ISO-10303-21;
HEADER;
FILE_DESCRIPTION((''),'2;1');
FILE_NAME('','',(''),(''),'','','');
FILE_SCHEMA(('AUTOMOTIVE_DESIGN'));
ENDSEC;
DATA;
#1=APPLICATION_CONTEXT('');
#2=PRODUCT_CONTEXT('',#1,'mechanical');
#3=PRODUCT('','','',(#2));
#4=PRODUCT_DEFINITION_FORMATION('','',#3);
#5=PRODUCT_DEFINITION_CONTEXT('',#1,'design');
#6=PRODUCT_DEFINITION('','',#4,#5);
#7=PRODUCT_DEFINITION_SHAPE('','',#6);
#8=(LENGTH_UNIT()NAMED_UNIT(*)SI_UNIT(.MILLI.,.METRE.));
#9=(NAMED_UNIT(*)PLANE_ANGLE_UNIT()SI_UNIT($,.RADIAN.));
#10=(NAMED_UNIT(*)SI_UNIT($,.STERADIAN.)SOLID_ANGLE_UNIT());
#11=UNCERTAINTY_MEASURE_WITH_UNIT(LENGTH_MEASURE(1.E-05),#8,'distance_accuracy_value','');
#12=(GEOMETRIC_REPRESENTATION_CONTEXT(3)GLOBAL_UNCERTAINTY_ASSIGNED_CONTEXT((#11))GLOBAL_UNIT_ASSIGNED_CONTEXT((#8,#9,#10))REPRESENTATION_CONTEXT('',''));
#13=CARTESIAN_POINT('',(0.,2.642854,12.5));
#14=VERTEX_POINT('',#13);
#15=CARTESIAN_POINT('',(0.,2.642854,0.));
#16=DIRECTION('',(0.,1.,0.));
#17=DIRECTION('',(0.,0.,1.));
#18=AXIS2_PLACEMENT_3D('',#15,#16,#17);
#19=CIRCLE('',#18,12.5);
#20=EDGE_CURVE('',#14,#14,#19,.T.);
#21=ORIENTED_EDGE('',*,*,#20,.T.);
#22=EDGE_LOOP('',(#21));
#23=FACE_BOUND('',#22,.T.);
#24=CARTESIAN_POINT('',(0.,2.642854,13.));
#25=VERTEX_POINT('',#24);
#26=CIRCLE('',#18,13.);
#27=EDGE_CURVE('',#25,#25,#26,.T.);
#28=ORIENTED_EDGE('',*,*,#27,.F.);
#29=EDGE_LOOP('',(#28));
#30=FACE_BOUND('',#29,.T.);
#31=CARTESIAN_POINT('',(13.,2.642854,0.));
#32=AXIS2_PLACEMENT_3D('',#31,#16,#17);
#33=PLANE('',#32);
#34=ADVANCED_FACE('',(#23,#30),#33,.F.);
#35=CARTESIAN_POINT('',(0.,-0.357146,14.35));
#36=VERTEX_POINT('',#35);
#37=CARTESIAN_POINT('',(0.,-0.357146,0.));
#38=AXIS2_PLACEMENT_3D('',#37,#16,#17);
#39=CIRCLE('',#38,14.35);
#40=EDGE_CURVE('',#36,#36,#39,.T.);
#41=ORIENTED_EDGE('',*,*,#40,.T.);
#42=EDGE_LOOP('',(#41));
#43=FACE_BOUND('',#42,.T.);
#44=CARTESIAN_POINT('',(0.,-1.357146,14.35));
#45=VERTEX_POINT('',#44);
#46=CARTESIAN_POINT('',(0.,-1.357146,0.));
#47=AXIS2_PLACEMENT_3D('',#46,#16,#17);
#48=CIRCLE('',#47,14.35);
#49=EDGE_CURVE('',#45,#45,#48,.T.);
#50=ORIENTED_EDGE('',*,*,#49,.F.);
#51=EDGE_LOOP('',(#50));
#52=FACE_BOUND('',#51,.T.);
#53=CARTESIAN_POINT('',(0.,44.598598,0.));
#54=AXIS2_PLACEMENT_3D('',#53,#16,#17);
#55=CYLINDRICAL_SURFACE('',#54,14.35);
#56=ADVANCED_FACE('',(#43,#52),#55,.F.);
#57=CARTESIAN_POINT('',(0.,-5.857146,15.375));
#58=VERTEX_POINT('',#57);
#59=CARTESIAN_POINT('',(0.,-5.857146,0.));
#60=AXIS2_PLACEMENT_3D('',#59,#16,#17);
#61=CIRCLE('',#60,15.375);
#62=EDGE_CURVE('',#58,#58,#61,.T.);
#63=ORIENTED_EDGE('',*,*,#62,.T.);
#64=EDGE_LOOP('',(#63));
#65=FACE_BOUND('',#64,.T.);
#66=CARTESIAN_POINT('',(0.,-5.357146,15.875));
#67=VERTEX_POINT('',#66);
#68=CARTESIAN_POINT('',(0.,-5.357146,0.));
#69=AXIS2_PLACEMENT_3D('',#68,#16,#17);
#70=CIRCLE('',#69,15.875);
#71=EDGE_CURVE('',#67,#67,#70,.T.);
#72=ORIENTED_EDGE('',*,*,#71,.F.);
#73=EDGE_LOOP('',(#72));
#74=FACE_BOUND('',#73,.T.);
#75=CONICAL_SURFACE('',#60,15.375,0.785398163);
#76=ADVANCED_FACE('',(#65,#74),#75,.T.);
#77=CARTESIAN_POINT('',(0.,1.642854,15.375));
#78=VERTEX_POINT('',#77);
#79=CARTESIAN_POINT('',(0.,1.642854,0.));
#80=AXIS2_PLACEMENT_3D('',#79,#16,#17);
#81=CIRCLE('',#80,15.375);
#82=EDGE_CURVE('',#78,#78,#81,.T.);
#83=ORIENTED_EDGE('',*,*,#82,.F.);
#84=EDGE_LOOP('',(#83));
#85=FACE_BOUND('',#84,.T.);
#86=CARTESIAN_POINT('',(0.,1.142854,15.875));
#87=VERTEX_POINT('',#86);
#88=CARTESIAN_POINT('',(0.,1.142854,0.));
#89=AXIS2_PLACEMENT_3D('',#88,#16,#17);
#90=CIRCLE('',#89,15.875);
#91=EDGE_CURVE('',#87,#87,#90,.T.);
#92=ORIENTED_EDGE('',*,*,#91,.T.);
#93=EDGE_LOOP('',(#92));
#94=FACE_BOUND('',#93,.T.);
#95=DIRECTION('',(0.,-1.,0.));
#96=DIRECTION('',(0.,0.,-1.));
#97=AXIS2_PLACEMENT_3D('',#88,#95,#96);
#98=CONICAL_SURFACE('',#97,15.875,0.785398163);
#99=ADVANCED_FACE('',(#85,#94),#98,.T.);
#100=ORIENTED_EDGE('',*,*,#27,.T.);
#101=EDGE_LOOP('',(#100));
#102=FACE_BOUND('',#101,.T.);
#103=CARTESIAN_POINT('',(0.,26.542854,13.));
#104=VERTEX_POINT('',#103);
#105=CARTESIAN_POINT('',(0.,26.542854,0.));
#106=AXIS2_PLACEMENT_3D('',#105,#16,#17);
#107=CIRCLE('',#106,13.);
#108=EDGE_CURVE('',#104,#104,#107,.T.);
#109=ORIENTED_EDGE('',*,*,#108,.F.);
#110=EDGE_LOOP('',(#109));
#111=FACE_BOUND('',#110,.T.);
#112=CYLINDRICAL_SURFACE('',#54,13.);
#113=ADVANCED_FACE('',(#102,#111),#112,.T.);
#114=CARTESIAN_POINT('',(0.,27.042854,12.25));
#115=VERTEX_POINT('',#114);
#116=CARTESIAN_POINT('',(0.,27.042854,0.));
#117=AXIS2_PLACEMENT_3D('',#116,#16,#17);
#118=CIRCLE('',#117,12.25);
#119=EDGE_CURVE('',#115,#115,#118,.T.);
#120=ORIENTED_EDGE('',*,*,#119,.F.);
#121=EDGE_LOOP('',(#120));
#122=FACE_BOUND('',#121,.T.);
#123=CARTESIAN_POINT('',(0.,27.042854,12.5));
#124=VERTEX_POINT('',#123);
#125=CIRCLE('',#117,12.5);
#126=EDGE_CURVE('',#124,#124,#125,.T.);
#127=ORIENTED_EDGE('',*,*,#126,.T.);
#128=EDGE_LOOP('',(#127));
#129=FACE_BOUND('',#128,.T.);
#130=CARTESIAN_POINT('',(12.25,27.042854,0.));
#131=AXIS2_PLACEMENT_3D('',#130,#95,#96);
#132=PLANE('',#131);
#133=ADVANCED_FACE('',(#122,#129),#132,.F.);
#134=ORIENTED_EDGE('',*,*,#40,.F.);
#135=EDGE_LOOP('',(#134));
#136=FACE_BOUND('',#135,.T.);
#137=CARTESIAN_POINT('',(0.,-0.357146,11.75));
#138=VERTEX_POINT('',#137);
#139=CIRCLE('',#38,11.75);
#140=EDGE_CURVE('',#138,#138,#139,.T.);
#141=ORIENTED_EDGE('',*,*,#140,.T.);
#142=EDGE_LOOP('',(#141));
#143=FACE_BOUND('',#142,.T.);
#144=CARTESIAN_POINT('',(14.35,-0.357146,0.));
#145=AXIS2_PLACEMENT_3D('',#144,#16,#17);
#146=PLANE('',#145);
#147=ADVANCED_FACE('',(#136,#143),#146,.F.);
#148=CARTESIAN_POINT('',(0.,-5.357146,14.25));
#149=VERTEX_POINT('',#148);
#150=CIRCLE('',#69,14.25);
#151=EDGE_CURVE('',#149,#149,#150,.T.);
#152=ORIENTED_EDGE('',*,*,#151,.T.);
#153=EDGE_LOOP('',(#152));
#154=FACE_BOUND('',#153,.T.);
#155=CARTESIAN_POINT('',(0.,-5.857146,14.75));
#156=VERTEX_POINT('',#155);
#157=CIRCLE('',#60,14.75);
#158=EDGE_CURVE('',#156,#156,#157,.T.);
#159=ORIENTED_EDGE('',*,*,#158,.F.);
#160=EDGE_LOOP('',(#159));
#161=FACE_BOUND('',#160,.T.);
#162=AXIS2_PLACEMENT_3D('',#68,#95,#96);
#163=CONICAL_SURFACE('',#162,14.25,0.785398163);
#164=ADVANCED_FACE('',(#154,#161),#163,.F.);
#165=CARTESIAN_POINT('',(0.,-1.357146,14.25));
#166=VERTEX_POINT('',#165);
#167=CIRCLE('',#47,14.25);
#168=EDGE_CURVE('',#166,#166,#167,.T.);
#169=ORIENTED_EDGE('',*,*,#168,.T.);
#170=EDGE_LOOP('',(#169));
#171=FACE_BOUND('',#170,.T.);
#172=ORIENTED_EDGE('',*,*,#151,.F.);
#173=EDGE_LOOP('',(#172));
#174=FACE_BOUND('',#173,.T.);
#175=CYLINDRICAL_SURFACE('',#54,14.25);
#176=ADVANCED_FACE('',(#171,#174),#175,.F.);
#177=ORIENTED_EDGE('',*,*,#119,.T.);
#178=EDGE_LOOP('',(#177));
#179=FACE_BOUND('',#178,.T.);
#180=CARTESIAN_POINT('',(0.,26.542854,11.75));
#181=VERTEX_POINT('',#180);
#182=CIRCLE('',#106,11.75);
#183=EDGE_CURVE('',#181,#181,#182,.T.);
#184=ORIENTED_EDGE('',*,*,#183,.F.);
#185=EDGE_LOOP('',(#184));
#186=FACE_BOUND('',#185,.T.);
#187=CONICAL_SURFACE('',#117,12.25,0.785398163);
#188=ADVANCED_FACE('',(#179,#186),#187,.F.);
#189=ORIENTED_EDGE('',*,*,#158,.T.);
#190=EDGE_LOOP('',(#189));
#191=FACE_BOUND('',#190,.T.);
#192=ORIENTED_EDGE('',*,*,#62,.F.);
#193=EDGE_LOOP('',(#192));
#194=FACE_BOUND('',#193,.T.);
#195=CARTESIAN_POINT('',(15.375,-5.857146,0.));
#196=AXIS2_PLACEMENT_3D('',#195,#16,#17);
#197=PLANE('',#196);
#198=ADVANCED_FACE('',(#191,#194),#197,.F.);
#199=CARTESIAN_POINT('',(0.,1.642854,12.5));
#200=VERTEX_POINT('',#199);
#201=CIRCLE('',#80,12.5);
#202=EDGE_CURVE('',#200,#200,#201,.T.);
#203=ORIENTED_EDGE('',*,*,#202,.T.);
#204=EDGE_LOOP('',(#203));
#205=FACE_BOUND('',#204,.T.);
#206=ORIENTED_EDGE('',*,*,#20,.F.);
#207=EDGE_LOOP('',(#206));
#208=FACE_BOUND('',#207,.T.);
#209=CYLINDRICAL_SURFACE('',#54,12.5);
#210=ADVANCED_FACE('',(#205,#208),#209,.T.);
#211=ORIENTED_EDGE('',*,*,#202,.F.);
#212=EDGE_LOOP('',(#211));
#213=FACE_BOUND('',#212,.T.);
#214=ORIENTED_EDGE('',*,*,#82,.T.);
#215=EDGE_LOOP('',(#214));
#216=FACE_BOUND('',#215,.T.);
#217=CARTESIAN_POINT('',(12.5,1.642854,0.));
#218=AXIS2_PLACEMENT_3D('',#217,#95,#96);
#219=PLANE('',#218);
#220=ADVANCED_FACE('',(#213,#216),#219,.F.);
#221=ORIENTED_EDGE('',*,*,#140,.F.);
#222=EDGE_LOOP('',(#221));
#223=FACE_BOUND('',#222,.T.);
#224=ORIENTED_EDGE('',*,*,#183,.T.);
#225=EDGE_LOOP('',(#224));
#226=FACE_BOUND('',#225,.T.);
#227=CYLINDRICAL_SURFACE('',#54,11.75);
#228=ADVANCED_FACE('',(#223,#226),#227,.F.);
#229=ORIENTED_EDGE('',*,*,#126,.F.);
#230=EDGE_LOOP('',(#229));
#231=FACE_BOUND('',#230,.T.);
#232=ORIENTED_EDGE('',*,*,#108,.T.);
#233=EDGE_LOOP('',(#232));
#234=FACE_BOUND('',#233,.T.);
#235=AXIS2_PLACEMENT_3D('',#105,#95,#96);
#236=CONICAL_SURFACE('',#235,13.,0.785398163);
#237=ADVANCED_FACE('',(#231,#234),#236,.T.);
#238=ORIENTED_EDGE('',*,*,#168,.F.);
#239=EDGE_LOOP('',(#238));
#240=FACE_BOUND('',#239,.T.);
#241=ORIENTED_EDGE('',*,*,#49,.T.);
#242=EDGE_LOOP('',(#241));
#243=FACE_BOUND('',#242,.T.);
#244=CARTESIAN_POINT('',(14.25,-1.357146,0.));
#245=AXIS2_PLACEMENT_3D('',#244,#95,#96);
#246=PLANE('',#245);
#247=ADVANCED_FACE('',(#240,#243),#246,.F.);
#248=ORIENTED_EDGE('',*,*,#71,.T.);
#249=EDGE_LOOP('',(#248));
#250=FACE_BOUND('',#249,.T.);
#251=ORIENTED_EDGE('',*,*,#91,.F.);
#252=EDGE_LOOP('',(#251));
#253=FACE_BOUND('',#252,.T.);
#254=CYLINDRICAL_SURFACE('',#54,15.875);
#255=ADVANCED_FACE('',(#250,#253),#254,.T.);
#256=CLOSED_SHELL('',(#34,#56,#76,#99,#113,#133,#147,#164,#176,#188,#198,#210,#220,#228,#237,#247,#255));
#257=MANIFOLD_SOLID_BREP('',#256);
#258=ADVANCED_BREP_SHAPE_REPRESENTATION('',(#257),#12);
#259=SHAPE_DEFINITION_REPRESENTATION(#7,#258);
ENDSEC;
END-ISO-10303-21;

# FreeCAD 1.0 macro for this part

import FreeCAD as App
import Part
import Sketcher

V = App.Vector

doc = App.newDocument("Part")
body = doc.addObject("PartDesign::Body", "Body")

sketch1 = doc.addObject("Sketcher::SketchObject", "Sketch")
body.addObject(sketch1)
sketch1.AttachmentSupport = (doc.XY_Plane, [""])
sketch1.MapMode = "FlatFace"
sketch1.addGeometry(Part.LineSegment(V(12.5, 27.042854, 0), V(12.25, 27.042854, 0)), False)
sketch1.addGeometry(Part.LineSegment(V(12.25, 27.042854, 0), V(11.75, 26.542854, 0)), False)
sketch1.addGeometry(Part.LineSegment(V(11.75, 26.542854, 0), V(11.75, -0.357146, 0)), False)
sketch1.addGeometry(Part.LineSegment(V(11.75, -0.357146, 0), V(14.35, -0.357146, 0)), False)
sketch1.addGeometry(Part.LineSegment(V(14.35, -0.357146, 0), V(14.35, -1.357146, 0)), False)
sketch1.addGeometry(Part.LineSegment(V(14.35, -1.357146, 0), V(14.25, -1.357146, 0)), False)
sketch1.addGeometry(Part.LineSegment(V(14.25, -1.357146, 0), V(14.25, -5.357146, 0)), False)
sketch1.addGeometry(Part.LineSegment(V(14.25, -5.357146, 0), V(14.75, -5.857146, 0)), False)
sketch1.addGeometry(Part.LineSegment(V(14.75, -5.857146, 0), V(15.375, -5.857146, 0)), False)
sketch1.addGeometry(Part.LineSegment(V(15.375, -5.857146, 0), V(15.875, -5.357146, 0)), False)
sketch1.addGeometry(Part.LineSegment(V(15.875, -5.357146, 0), V(15.875, 1.142854, 0)), False)
sketch1.addGeometry(Part.LineSegment(V(15.875, 1.142854, 0), V(15.375, 1.642854, 0)), False)
sketch1.addGeometry(Part.LineSegment(V(15.375, 1.642854, 0), V(12.5, 1.642854, 0)), False)
sketch1.addGeometry(Part.LineSegment(V(12.5, 1.642854, 0), V(12.5, 2.642854, 0)), False)
sketch1.addGeometry(Part.LineSegment(V(12.5, 2.642854, 0), V(13, 2.642854, 0)), False)
sketch1.addGeometry(Part.LineSegment(V(13, 2.642854, 0), V(13, 26.542854, 0)), False)
sketch1.addGeometry(Part.LineSegment(V(13, 26.542854, 0), V(12.5, 27.042854, 0)), False)
sketch1.addConstraint(Sketcher.Constraint("Coincident", 0, 2, 1, 1))
sketch1.addConstraint(Sketcher.Constraint("Coincident", 1, 2, 2, 1))
sketch1.addConstraint(Sketcher.Constraint("Coincident", 2, 2, 3, 1))
sketch1.addConstraint(Sketcher.Constraint("Coincident", 3, 2, 4, 1))
sketch1.addConstraint(Sketcher.Constraint("Coincident", 4, 2, 5, 1))
sketch1.addConstraint(Sketcher.Constraint("Coincident", 5, 2, 6, 1))
sketch1.addConstraint(Sketcher.Constraint("Coincident", 6, 2, 7, 1))
sketch1.addConstraint(Sketcher.Constraint("Coincident", 7, 2, 8, 1))
sketch1.addConstraint(Sketcher.Constraint("Coincident", 8, 2, 9, 1))
sketch1.addConstraint(Sketcher.Constraint("Coincident", 9, 2, 10, 1))
sketch1.addConstraint(Sketcher.Constraint("Coincident", 10, 2, 11, 1))
sketch1.addConstraint(Sketcher.Constraint("Coincident", 11, 2, 12, 1))
sketch1.addConstraint(Sketcher.Constraint("Coincident", 12, 2, 13, 1))
sketch1.addConstraint(Sketcher.Constraint("Coincident", 13, 2, 14, 1))
sketch1.addConstraint(Sketcher.Constraint("Coincident", 14, 2, 15, 1))
sketch1.addConstraint(Sketcher.Constraint("Coincident", 15, 2, 16, 1))
sketch1.addConstraint(Sketcher.Constraint("Coincident", 16, 2, 0, 1))
sketch1.addConstraint(Sketcher.Constraint("Horizontal", 0))
sketch1.addConstraint(Sketcher.Constraint("Vertical", 2))
sketch1.addConstraint(Sketcher.Constraint("Horizontal", 3))
sketch1.addConstraint(Sketcher.Constraint("Vertical", 4))
sketch1.addConstraint(Sketcher.Constraint("Horizontal", 5))
sketch1.addConstraint(Sketcher.Constraint("Vertical", 6))
sketch1.addConstraint(Sketcher.Constraint("Horizontal", 8))
sketch1.addConstraint(Sketcher.Constraint("Vertical", 10))
sketch1.addConstraint(Sketcher.Constraint("Horizontal", 12))
sketch1.addConstraint(Sketcher.Constraint("Vertical", 13))
sketch1.addConstraint(Sketcher.Constraint("Horizontal", 14))
sketch1.addConstraint(Sketcher.Constraint("Vertical", 15))
sketch1.addConstraint(Sketcher.Constraint("Perpendicular", 1, 7))
sketch1.addConstraint(Sketcher.Constraint("Perpendicular", 7, 9))
sketch1.addConstraint(Sketcher.Constraint("Perpendicular", 9, 11))
sketch1.addConstraint(Sketcher.Constraint("Parallel", 11, 16))
sketch1.addConstraint(Sketcher.Constraint("Horizontal", 6, 2, 9, 2))
sketch1.addConstraint(Sketcher.Constraint("Horizontal", 1, 2, 15, 2))
sketch1.addConstraint(Sketcher.Constraint("Vertical", 8, 2, 11, 2))
sketch1.addConstraint(Sketcher.Constraint("Vertical", 13, 2, 16, 2))
sketch1.addConstraint(Sketcher.Constraint("Equal", 4, 13))
sketch1.addConstraint(Sketcher.Constraint("Equal", 1, 7))
sketch1.addConstraint(Sketcher.Constraint("Equal", 7, 9))
sketch1.addConstraint(Sketcher.Constraint("DistanceY", 4, 2, 4, 1, 1.0))
sketch1.addConstraint(Sketcher.Constraint("DistanceY", 6, 2, 6, 1, 4.0))
sketch1.addConstraint(Sketcher.Constraint("DistanceX", 3, 1, 3, 2, 2.6))
sketch1.addConstraint(Sketcher.Constraint("DistanceX", 5, 2, 5, 1, 0.1))
sketch1.addConstraint(Sketcher.Constraint("DistanceX", 14, 1, 14, 2, 0.5))
sketch1.addConstraint(Sketcher.Constraint("DistanceY", 2, 2, 2, 1, 26.9))
sketch1.addConstraint(Sketcher.Constraint("DistanceY", 10, 1, 10, 2, 6.5))
sketch1.addConstraint(Sketcher.Constraint("DistanceX", -1, 1, 14, 2, 13.0))
sketch1.addConstraint(Sketcher.Constraint("DistanceX", 0, 2, 0, 1, 0.25))
sketch1.addConstraint(Sketcher.Constraint("DistanceX", 8, 1, 8, 2, 0.625))
sketch1.addConstraint(Sketcher.Constraint("DistanceY", -1, 1, 0, 2, 27.042854))
revolution = doc.addObject("PartDesign::Revolution", "Revolution")
body.addObject(revolution)
revolution.Profile = sketch1
revolution.ReferenceAxis = (sketch1, ["V_Axis"])
revolution.Angle = 360

doc.recompute()
